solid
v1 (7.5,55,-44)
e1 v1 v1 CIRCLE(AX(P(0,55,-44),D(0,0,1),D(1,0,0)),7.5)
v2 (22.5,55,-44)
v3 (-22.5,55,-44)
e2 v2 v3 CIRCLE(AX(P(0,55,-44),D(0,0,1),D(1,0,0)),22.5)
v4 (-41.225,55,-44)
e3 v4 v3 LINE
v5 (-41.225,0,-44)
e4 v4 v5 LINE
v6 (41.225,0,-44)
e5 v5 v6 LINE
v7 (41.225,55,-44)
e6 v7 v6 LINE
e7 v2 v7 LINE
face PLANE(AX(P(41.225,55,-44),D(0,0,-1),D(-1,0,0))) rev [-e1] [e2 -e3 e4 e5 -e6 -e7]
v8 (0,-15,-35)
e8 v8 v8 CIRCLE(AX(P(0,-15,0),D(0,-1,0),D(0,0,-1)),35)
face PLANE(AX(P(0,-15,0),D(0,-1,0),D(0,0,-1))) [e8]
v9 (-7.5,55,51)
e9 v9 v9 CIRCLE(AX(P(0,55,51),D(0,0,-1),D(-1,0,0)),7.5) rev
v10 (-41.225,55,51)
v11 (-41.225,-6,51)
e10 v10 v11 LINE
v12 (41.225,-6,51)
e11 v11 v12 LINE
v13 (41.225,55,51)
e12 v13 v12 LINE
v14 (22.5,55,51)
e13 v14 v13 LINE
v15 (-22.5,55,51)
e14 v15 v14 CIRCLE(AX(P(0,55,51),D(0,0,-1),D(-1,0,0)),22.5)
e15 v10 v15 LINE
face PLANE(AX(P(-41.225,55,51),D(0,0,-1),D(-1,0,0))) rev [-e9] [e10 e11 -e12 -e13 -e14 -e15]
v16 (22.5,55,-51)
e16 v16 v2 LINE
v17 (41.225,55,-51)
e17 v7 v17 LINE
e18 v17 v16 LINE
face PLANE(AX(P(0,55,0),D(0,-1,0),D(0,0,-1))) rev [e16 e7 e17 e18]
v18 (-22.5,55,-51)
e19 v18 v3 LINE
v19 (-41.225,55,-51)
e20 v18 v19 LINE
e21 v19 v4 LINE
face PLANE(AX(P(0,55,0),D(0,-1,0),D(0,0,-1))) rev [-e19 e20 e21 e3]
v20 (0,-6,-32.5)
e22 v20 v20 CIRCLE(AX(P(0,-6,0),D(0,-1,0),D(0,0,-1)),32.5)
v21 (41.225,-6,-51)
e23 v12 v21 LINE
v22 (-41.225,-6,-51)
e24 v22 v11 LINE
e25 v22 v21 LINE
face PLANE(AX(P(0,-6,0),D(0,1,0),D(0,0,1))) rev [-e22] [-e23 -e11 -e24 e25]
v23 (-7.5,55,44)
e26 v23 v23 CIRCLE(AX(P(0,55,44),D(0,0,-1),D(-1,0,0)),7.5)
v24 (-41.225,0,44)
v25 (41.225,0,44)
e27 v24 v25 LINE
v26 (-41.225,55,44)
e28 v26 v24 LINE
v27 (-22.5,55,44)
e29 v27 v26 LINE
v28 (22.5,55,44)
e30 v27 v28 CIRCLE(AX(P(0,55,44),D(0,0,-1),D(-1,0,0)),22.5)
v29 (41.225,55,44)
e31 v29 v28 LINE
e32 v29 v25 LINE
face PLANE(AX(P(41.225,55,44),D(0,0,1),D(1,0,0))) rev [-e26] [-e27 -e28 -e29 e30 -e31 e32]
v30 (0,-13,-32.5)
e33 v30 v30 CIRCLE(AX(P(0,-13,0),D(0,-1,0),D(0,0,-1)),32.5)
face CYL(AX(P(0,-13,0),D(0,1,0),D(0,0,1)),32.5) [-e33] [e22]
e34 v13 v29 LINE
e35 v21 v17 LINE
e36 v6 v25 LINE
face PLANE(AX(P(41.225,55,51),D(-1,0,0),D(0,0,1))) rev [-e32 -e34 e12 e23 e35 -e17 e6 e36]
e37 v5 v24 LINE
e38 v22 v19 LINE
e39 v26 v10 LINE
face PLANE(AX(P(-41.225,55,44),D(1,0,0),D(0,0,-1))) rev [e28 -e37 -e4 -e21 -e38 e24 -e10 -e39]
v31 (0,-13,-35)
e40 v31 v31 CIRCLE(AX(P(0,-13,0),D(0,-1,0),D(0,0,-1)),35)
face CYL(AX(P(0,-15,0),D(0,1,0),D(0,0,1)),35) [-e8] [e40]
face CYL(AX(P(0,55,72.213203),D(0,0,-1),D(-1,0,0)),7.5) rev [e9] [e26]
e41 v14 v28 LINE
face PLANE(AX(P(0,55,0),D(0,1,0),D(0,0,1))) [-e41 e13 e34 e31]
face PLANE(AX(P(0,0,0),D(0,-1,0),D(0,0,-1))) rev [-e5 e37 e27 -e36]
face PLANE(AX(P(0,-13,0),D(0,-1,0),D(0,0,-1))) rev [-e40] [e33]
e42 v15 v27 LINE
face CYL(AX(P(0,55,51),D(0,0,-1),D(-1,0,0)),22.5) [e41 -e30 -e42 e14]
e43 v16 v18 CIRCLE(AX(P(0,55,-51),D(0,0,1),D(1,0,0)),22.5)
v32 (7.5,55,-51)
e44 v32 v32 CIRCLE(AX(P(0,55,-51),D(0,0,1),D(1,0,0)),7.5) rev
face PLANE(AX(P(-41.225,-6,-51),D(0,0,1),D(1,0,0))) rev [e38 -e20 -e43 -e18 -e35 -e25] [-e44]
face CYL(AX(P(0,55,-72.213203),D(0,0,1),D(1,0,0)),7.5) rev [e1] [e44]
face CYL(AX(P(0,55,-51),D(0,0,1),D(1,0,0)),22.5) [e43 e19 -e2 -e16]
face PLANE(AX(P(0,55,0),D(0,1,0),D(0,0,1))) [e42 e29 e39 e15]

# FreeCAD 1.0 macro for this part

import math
import FreeCAD as App
import Part
import Sketcher

V = App.Vector
Q = App.Units.Quantity


def add_polygon(sketch, points):
    """Adds a closed chain of lines whose ends are joined by coincident constraints."""
    first, n = sketch.GeometryCount, len(points)
    for a, b in zip(points, points[1:] + points[:1]):
        sketch.addGeometry(Part.LineSegment(App.Vector(*a, 0), App.Vector(*b, 0)), False)
    for i in range(n):
        sketch.addConstraint(Sketcher.Constraint("Coincident", first + i, 2, first + (i + 1) % n, 1))

doc = App.newDocument("Part")
params = doc.addObject("Spreadsheet::Sheet", "Params")
for row, (alias, value) in enumerate([
    ("sketch1_height", "88 mm"),
    ("sketch1_width", "82.45 mm"),
    ("pad1_length", "6 mm"),
    ("sketch2_height", "7 mm"),
    ("sketch2_width", "82.45 mm"),
    ("pad2_length", "55 mm"),
    ("sketch3_height", "7 mm"),
    ("sketch3_width", "82.45 mm"),
    ("pad3_length", "55 mm"),
    ("sketch4_height", "7 mm"),
    ("sketch4_width", "82.45 mm"),
    ("pad4_length", "6 mm"),
    ("sketch5_height", "7 mm"),
    ("sketch5_width", "82.45 mm"),
    ("pad5_length", "6 mm"),
    ("sketch6_radius", "22.5 mm"),
    ("pad6_length", "7 mm"),
    ("sketch7_radius", "22.5 mm"),
    ("pad7_length", "7 mm"),
    ("sketch8_diameter", "65 mm"),
    ("pad8_length", "7 mm"),
    ("sketch9_diameter", "70 mm"),
    ("pad9_length", "2 mm"),
    ("sketch10_diameter", "15 mm"),
    ("pocket1_length", "7 mm"),
    ("sketch11_diameter", "15 mm"),
    ("pocket2_length", "7 mm"),
], start=1):
    params.set(f"A{row}", alias)
    params.set(f"B{row}", "=" + value)
    params.setAlias(f"B{row}", alias)

body = doc.addObject("PartDesign::Body", "Body")

# Sketch on XZ plane
sketch1 = body.newObject("Sketcher::SketchObject", "Sketch")
sketch1.AttachmentSupport = (doc.getObject("XZ_Plane"), [""])
sketch1.MapMode = "FlatFace"
add_polygon(sketch1, [(-41, -44), (-41, 44), (41, 44), (41, -44)])  # lines 0-3
sketch1.addConstraint([
    Sketcher.Constraint("Vertical", 0),
    Sketcher.Constraint("Horizontal", 1),
    Sketcher.Constraint("Vertical", 2),
    Sketcher.Constraint("Horizontal", 3),
    Sketcher.Constraint("Symmetric", 0, 2, 2, 2, -1, 1),
    Sketcher.Constraint("DistanceY", 0, 1, 0, 2, Q("88 mm")),
    Sketcher.Constraint("DistanceX", 1, 1, 1, 2, Q("82.45 mm")),
])
sketch1.setExpression("Constraints[9]", "Params.sketch1_height")
sketch1.setExpression("Constraints[10]", "Params.sketch1_width")
pad1 = body.newObject("PartDesign::Pad", "Pad")
pad1.Profile = sketch1
pad1.setExpression("Length", "Params.pad1_length")
body2 = doc.addObject("PartDesign::Body", "Body001")

# Sketch on XZ plane
sketch2 = body2.newObject("Sketcher::SketchObject", "Sketch001")
sketch2.AttachmentSupport = (doc.getObject("XZ_Plane001"), [""])
sketch2.MapMode = "FlatFace"
add_polygon(sketch2, [(-41, -51), (-41, -44), (41, -44), (41, -51)])  # lines 0-3
sketch2.addConstraint([
    Sketcher.Constraint("Vertical", 0),
    Sketcher.Constraint("Horizontal", 1),
    Sketcher.Constraint("Vertical", 2),
    Sketcher.Constraint("Horizontal", 3),
    Sketcher.Constraint("DistanceY", 0, 1, 0, 2, Q("7 mm")),
    Sketcher.Constraint("DistanceY", 0, 2, -1, 1, Q("44 mm")),
    Sketcher.Constraint("DistanceX", 1, 1, 1, 2, Q("82.45 mm")),
    Sketcher.Constraint("DistanceX", 0, 2, -1, 1, Q("41.225 mm")),
])
sketch2.setExpression("Constraints[8]", "Params.sketch2_height")
sketch2.setExpression("Constraints[10]", "Params.sketch2_width")
pad2 = body2.newObject("PartDesign::Pad", "Pad001")
pad2.Profile = sketch2
pad2.setExpression("Length", "Params.pad2_length")
pad2.Reversed = True
body3 = doc.addObject("PartDesign::Body", "Body002")

# Sketch on XZ plane
sketch3 = body3.newObject("Sketcher::SketchObject", "Sketch002")
sketch3.AttachmentSupport = (doc.getObject("XZ_Plane002"), [""])
sketch3.MapMode = "FlatFace"
add_polygon(sketch3, [(-41, 44), (-41, 51), (41, 51), (41, 44)])  # lines 0-3
sketch3.addConstraint([
    Sketcher.Constraint("Vertical", 0),
    Sketcher.Constraint("Horizontal", 1),
    Sketcher.Constraint("Vertical", 2),
    Sketcher.Constraint("Horizontal", 3),
    Sketcher.Constraint("DistanceY", 0, 1, 0, 2, Q("7 mm")),
    Sketcher.Constraint("DistanceY", -1, 1, 0, 2, Q("51 mm")),
    Sketcher.Constraint("DistanceX", 1, 1, 1, 2, Q("82.45 mm")),
    Sketcher.Constraint("DistanceX", 0, 2, -1, 1, Q("41.225 mm")),
])
sketch3.setExpression("Constraints[8]", "Params.sketch3_height")
sketch3.setExpression("Constraints[10]", "Params.sketch3_width")
pad3 = body3.newObject("PartDesign::Pad", "Pad002")
pad3.Profile = sketch3
pad3.setExpression("Length", "Params.pad3_length")
pad3.Reversed = True
body.AllowCompound = True
doc.recompute()

boolean = body.newObject("PartDesign::Boolean", "Boolean")
boolean.Type = "Fuse"
boolean.addObjects([body2])

# Sketch on XZ plane
sketch4 = body.newObject("Sketcher::SketchObject", "Sketch003")
sketch4.AttachmentSupport = (doc.getObject("XZ_Plane"), [""])
sketch4.MapMode = "FlatFace"
add_polygon(sketch4, [(-41, -51), (-41, -44), (41, -44), (41, -51)])  # lines 0-3
sketch4.addConstraint([
    Sketcher.Constraint("Vertical", 0),
    Sketcher.Constraint("Horizontal", 1),
    Sketcher.Constraint("Vertical", 2),
    Sketcher.Constraint("Horizontal", 3),
    Sketcher.Constraint("DistanceY", 0, 1, 0, 2, Q("7 mm")),
    Sketcher.Constraint("DistanceY", 0, 2, -1, 1, Q("44 mm")),
    Sketcher.Constraint("DistanceX", 1, 1, 1, 2, Q("82.45 mm")),
    Sketcher.Constraint("DistanceX", 0, 2, -1, 1, Q("41.225 mm")),
])
sketch4.setExpression("Constraints[8]", "Params.sketch4_height")
sketch4.setExpression("Constraints[10]", "Params.sketch4_width")
pad4 = body.newObject("PartDesign::Pad", "Pad003")
pad4.Profile = sketch4
pad4.setExpression("Length", "Params.pad4_length")
doc.recompute()

boolean2 = body.newObject("PartDesign::Boolean", "Boolean001")
boolean2.Type = "Fuse"
boolean2.addObjects([body3])

# Sketch on XZ plane
sketch5 = body.newObject("Sketcher::SketchObject", "Sketch004")
sketch5.AttachmentSupport = (doc.getObject("XZ_Plane"), [""])
sketch5.MapMode = "FlatFace"
add_polygon(sketch5, [(-41, 44), (-41, 51), (41, 51), (41, 44)])  # lines 0-3
sketch5.addConstraint([
    Sketcher.Constraint("Vertical", 0),
    Sketcher.Constraint("Horizontal", 1),
    Sketcher.Constraint("Vertical", 2),
    Sketcher.Constraint("Horizontal", 3),
    Sketcher.Constraint("DistanceY", 0, 1, 0, 2, Q("7 mm")),
    Sketcher.Constraint("DistanceY", -1, 1, 0, 2, Q("51 mm")),
    Sketcher.Constraint("DistanceX", 1, 1, 1, 2, Q("82.45 mm")),
    Sketcher.Constraint("DistanceX", 0, 2, -1, 1, Q("41.225 mm")),
])
sketch5.setExpression("Constraints[8]", "Params.sketch5_height")
sketch5.setExpression("Constraints[10]", "Params.sketch5_width")
pad5 = body.newObject("PartDesign::Pad", "Pad004")
pad5.Profile = sketch5
pad5.setExpression("Length", "Params.pad5_length")

# Sketch on XY plane
sketch6 = body.newObject("Sketcher::SketchObject", "Sketch005")
sketch6.AttachmentSupport = (doc.getObject("XY_Plane"), [""])
sketch6.MapMode = "FlatFace"
sketch6.AttachmentOffset = App.Placement(V(0, 0, -44), App.Rotation())
sketch6.addGeometry([
    Part.LineSegment(V(-22, 55, 0), V(22, 55, 0)),
    Part.ArcOfCircle(Part.Circle(V(0, 55, 0), V(0, 0, 1), 22), math.radians(0), math.radians(180)),
], False)
sketch6.addConstraint([
    Sketcher.Constraint("Coincident", 0, 1, 1, 2),
    Sketcher.Constraint("Coincident", 1, 1, 0, 2),
    Sketcher.Constraint("Horizontal", 0),
    Sketcher.Constraint("PointOnObject", 1, 3, -2),
    Sketcher.Constraint("Horizontal", 1, 3, 0, 1),
    Sketcher.Constraint("Radius", 1, Q("22.5 mm")),
    Sketcher.Constraint("DistanceY", -1, 1, 1, 3, Q("55 mm")),
])
sketch6.setExpression("Constraints[5]", "Params.sketch6_radius")
pad6 = body.newObject("PartDesign::Pad", "Pad005")
pad6.Profile = sketch6
pad6.setExpression("Length", "Params.pad6_length")
pad6.Reversed = True

# Sketch on XY plane
sketch7 = body.newObject("Sketcher::SketchObject", "Sketch006")
sketch7.AttachmentSupport = (doc.getObject("XY_Plane"), [""])
sketch7.MapMode = "FlatFace"
sketch7.AttachmentOffset = App.Placement(V(0, 0, 44), App.Rotation())
sketch7.addGeometry([
    Part.LineSegment(V(22, 55, 0), V(-22, 55, 0)),
    Part.ArcOfCircle(Part.Circle(V(0, 55, 0), V(0, 0, 1), 22), math.radians(0), math.radians(180)),
], False)
sketch7.addConstraint([
    Sketcher.Constraint("Coincident", 0, 1, 1, 1),
    Sketcher.Constraint("Coincident", 1, 2, 0, 2),
    Sketcher.Constraint("Horizontal", 0),
    Sketcher.Constraint("PointOnObject", 1, 3, -2),
    Sketcher.Constraint("Horizontal", 1, 3, 0, 1),
    Sketcher.Constraint("Radius", 1, Q("22.5 mm")),
    Sketcher.Constraint("DistanceY", -1, 1, 1, 3, Q("55 mm")),
])
sketch7.setExpression("Constraints[5]", "Params.sketch7_radius")
pad7 = body.newObject("PartDesign::Pad", "Pad006")
pad7.Profile = sketch7
pad7.setExpression("Length", "Params.pad7_length")

# Sketch on XZ plane
sketch8 = body.newObject("Sketcher::SketchObject", "Sketch007")
sketch8.AttachmentSupport = (doc.getObject("XZ_Plane"), [""])
sketch8.MapMode = "FlatFace"
sketch8.AttachmentOffset = App.Placement(V(0, 0, 6), App.Rotation())
sketch8.addGeometry(Part.Circle(V(0, 0, 0), V(0, 0, 1), 32), False)
sketch8.addConstraint([
    Sketcher.Constraint("Coincident", 0, 3, -1, 1),
    Sketcher.Constraint("Diameter", 0, Q("65 mm")),
])
sketch8.setExpression("Constraints[1]", "Params.sketch8_diameter")
pad8 = body.newObject("PartDesign::Pad", "Pad007")
pad8.Profile = sketch8
pad8.setExpression("Length", "Params.pad8_length")

# Sketch on XZ plane
sketch9 = body.newObject("Sketcher::SketchObject", "Sketch008")
sketch9.AttachmentSupport = (doc.getObject("XZ_Plane"), [""])
sketch9.MapMode = "FlatFace"
sketch9.AttachmentOffset = App.Placement(V(0, 0, 13), App.Rotation())
sketch9.addGeometry(Part.Circle(V(0, 0, 0), V(0, 0, 1), 35), False)
sketch9.addConstraint([
    Sketcher.Constraint("Coincident", 0, 3, -1, 1),
    Sketcher.Constraint("Diameter", 0, Q("70 mm")),
])
sketch9.setExpression("Constraints[1]", "Params.sketch9_diameter")
pad9 = body.newObject("PartDesign::Pad", "Pad008")
pad9.Profile = sketch9
pad9.setExpression("Length", "Params.pad9_length")

# Sketch on XY plane
sketch10 = body.newObject("Sketcher::SketchObject", "Sketch009")
sketch10.AttachmentSupport = (doc.getObject("XY_Plane"), [""])
sketch10.MapMode = "FlatFace"
sketch10.AttachmentOffset = App.Placement(V(0, 0, -44), App.Rotation())
sketch10.addGeometry(Part.Circle(V(0, 55, 0), V(0, 0, 1), 8), False)
sketch10.addConstraint([
    Sketcher.Constraint("PointOnObject", 0, 3, -2),
    Sketcher.Constraint("Diameter", 0, Q("15 mm")),
    Sketcher.Constraint("DistanceY", -1, 1, 0, 3, Q("55 mm")),
])
sketch10.setExpression("Constraints[1]", "Params.sketch10_diameter")
pocket1 = body.newObject("PartDesign::Pocket", "Pocket")
pocket1.Profile = sketch10
pocket1.setExpression("Length", "Params.pocket1_length")

# Sketch on XY plane
sketch11 = body.newObject("Sketcher::SketchObject", "Sketch010")
sketch11.AttachmentSupport = (doc.getObject("XY_Plane"), [""])
sketch11.MapMode = "FlatFace"
sketch11.AttachmentOffset = App.Placement(V(0, 0, 44), App.Rotation())
sketch11.addGeometry(Part.Circle(V(0, 55, 0), V(0, 0, 1), 8), False)
sketch11.addConstraint([
    Sketcher.Constraint("PointOnObject", 0, 3, -2),
    Sketcher.Constraint("Diameter", 0, Q("15 mm")),
    Sketcher.Constraint("DistanceY", -1, 1, 0, 3, Q("55 mm")),
])
sketch11.setExpression("Constraints[1]", "Params.sketch11_diameter")
pocket2 = body.newObject("PartDesign::Pocket", "Pocket001")
pocket2.Profile = sketch11
pocket2.setExpression("Length", "Params.pocket2_length")
pocket2.Reversed = True

doc.recompute()
